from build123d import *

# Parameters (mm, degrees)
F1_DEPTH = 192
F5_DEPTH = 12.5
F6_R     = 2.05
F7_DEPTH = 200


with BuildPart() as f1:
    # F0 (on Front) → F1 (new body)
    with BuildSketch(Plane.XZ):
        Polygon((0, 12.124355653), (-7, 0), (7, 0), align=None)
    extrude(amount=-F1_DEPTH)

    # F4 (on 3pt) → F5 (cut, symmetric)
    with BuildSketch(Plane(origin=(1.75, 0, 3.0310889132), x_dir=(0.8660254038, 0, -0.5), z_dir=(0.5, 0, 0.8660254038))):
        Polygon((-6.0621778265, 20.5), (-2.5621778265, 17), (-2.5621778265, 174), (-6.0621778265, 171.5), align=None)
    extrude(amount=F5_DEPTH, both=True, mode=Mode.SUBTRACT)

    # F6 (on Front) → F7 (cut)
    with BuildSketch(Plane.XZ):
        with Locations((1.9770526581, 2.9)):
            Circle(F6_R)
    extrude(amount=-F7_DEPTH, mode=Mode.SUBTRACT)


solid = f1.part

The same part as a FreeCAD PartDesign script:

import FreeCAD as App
import Part
import Sketcher

V = App.Vector
Q = App.Units.Quantity


def add_polygon(sketch, points):
    """Adds a closed chain of lines whose ends are joined by coincident constraints."""
    first, n = sketch.GeometryCount, len(points)
    for a, b in zip(points, points[1:] + points[:1]):
        sketch.addGeometry(Part.LineSegment(App.Vector(*a, 0), App.Vector(*b, 0)), False)
    for i in range(n):
        sketch.addConstraint(Sketcher.Constraint("Coincident", first + i, 2, first + (i + 1) % n, 1))

doc = App.newDocument("Part")
body = doc.addObject("PartDesign::Body", "Body")

sketch1 = doc.addObject("Sketcher::SketchObject", "Sketch")
body.addObject(sketch1)
sketch1.AttachmentSupport = (doc.XZ_Plane, [""])
sketch1.MapMode = "FlatFace"
add_polygon(sketch1, [(0, 12), (-7, 0), (7, 0)])
sketch1.addConstraint(Sketcher.Constraint("Horizontal", 1))
sketch1.addConstraint(Sketcher.Constraint("Symmetric", 0, 2, 1, 2, -1, 1))
sketch1.addConstraint(Sketcher.Constraint("PointOnObject", 2, 2, -2))
sketch1.addConstraint(Sketcher.Constraint("DistanceX", 1, 1, 1, 2, 14.0))
sketch1.addConstraint(Sketcher.Constraint("Angle", 0, Q("-120 deg")))
pad1 = doc.addObject("PartDesign::Pad", "Pad")
body.addObject(pad1)
pad1.Profile = sketch1
pad1.Length = 192
pad1.Reversed = True

sketch2 = doc.addObject("Sketcher::SketchObject", "Sketch001")
body.addObject(sketch2)
sketch2.Placement = App.Placement(V(1.75, 0, 3.031089), App.Rotation(V(0.866025404, 0, -0.5), V(0, 1, 0), V(0.5, 0, 0.866025404), "ZXY"))
add_polygon(sketch2, [(-6.1, 20.5), (-2.6, 17), (-2.6, 174), (-6.1, 171.5)])
sketch2.addConstraint(Sketcher.Constraint("Vertical", 1))
sketch2.addConstraint(Sketcher.Constraint("Vertical", 3))
sketch2.addConstraint(Sketcher.Constraint("DistanceY", 1, 1, 1, 2, 157.0))
sketch2.addConstraint(Sketcher.Constraint("DistanceY", 3, 2, 3, 1, 151.0))
sketch2.addConstraint(Sketcher.Constraint("Angle", 0, Q("-45 deg")))
sketch2.addConstraint(Sketcher.Constraint("DistanceY", -1, 1, 0, 2, 17.0))
sketch2.addConstraint(Sketcher.Constraint("DistanceY", -1, 1, 2, 2, 171.5))
sketch2.addConstraint(Sketcher.Constraint("DistanceX", 0, 2, -1, 1, 2.562178))
pocket1 = doc.addObject("PartDesign::Pocket", "Pocket")
body.addObject(pocket1)
pocket1.Profile = sketch2
pocket1.Length = 25
pocket1.Midplane = True

sketch3 = doc.addObject("Sketcher::SketchObject", "Sketch002")
body.addObject(sketch3)
sketch3.AttachmentSupport = (doc.XZ_Plane, [""])
sketch3.MapMode = "FlatFace"
sketch3.addGeometry(Part.Circle(V(2, 2.9, 0), V(0, 0, 1), 2), False)
sketch3.addConstraint(Sketcher.Constraint("Diameter", 0, 4.1))
sketch3.addConstraint(Sketcher.Constraint("DistanceY", -1, 1, 0, 3, 2.9))
sketch3.addConstraint(Sketcher.Constraint("DistanceX", -1, 1, 0, 3, 1.977053))
pocket2 = doc.addObject("PartDesign::Pocket", "Pocket001")
body.addObject(pocket2)
pocket2.Profile = sketch3
pocket2.Length = 200

doc.recompute()
